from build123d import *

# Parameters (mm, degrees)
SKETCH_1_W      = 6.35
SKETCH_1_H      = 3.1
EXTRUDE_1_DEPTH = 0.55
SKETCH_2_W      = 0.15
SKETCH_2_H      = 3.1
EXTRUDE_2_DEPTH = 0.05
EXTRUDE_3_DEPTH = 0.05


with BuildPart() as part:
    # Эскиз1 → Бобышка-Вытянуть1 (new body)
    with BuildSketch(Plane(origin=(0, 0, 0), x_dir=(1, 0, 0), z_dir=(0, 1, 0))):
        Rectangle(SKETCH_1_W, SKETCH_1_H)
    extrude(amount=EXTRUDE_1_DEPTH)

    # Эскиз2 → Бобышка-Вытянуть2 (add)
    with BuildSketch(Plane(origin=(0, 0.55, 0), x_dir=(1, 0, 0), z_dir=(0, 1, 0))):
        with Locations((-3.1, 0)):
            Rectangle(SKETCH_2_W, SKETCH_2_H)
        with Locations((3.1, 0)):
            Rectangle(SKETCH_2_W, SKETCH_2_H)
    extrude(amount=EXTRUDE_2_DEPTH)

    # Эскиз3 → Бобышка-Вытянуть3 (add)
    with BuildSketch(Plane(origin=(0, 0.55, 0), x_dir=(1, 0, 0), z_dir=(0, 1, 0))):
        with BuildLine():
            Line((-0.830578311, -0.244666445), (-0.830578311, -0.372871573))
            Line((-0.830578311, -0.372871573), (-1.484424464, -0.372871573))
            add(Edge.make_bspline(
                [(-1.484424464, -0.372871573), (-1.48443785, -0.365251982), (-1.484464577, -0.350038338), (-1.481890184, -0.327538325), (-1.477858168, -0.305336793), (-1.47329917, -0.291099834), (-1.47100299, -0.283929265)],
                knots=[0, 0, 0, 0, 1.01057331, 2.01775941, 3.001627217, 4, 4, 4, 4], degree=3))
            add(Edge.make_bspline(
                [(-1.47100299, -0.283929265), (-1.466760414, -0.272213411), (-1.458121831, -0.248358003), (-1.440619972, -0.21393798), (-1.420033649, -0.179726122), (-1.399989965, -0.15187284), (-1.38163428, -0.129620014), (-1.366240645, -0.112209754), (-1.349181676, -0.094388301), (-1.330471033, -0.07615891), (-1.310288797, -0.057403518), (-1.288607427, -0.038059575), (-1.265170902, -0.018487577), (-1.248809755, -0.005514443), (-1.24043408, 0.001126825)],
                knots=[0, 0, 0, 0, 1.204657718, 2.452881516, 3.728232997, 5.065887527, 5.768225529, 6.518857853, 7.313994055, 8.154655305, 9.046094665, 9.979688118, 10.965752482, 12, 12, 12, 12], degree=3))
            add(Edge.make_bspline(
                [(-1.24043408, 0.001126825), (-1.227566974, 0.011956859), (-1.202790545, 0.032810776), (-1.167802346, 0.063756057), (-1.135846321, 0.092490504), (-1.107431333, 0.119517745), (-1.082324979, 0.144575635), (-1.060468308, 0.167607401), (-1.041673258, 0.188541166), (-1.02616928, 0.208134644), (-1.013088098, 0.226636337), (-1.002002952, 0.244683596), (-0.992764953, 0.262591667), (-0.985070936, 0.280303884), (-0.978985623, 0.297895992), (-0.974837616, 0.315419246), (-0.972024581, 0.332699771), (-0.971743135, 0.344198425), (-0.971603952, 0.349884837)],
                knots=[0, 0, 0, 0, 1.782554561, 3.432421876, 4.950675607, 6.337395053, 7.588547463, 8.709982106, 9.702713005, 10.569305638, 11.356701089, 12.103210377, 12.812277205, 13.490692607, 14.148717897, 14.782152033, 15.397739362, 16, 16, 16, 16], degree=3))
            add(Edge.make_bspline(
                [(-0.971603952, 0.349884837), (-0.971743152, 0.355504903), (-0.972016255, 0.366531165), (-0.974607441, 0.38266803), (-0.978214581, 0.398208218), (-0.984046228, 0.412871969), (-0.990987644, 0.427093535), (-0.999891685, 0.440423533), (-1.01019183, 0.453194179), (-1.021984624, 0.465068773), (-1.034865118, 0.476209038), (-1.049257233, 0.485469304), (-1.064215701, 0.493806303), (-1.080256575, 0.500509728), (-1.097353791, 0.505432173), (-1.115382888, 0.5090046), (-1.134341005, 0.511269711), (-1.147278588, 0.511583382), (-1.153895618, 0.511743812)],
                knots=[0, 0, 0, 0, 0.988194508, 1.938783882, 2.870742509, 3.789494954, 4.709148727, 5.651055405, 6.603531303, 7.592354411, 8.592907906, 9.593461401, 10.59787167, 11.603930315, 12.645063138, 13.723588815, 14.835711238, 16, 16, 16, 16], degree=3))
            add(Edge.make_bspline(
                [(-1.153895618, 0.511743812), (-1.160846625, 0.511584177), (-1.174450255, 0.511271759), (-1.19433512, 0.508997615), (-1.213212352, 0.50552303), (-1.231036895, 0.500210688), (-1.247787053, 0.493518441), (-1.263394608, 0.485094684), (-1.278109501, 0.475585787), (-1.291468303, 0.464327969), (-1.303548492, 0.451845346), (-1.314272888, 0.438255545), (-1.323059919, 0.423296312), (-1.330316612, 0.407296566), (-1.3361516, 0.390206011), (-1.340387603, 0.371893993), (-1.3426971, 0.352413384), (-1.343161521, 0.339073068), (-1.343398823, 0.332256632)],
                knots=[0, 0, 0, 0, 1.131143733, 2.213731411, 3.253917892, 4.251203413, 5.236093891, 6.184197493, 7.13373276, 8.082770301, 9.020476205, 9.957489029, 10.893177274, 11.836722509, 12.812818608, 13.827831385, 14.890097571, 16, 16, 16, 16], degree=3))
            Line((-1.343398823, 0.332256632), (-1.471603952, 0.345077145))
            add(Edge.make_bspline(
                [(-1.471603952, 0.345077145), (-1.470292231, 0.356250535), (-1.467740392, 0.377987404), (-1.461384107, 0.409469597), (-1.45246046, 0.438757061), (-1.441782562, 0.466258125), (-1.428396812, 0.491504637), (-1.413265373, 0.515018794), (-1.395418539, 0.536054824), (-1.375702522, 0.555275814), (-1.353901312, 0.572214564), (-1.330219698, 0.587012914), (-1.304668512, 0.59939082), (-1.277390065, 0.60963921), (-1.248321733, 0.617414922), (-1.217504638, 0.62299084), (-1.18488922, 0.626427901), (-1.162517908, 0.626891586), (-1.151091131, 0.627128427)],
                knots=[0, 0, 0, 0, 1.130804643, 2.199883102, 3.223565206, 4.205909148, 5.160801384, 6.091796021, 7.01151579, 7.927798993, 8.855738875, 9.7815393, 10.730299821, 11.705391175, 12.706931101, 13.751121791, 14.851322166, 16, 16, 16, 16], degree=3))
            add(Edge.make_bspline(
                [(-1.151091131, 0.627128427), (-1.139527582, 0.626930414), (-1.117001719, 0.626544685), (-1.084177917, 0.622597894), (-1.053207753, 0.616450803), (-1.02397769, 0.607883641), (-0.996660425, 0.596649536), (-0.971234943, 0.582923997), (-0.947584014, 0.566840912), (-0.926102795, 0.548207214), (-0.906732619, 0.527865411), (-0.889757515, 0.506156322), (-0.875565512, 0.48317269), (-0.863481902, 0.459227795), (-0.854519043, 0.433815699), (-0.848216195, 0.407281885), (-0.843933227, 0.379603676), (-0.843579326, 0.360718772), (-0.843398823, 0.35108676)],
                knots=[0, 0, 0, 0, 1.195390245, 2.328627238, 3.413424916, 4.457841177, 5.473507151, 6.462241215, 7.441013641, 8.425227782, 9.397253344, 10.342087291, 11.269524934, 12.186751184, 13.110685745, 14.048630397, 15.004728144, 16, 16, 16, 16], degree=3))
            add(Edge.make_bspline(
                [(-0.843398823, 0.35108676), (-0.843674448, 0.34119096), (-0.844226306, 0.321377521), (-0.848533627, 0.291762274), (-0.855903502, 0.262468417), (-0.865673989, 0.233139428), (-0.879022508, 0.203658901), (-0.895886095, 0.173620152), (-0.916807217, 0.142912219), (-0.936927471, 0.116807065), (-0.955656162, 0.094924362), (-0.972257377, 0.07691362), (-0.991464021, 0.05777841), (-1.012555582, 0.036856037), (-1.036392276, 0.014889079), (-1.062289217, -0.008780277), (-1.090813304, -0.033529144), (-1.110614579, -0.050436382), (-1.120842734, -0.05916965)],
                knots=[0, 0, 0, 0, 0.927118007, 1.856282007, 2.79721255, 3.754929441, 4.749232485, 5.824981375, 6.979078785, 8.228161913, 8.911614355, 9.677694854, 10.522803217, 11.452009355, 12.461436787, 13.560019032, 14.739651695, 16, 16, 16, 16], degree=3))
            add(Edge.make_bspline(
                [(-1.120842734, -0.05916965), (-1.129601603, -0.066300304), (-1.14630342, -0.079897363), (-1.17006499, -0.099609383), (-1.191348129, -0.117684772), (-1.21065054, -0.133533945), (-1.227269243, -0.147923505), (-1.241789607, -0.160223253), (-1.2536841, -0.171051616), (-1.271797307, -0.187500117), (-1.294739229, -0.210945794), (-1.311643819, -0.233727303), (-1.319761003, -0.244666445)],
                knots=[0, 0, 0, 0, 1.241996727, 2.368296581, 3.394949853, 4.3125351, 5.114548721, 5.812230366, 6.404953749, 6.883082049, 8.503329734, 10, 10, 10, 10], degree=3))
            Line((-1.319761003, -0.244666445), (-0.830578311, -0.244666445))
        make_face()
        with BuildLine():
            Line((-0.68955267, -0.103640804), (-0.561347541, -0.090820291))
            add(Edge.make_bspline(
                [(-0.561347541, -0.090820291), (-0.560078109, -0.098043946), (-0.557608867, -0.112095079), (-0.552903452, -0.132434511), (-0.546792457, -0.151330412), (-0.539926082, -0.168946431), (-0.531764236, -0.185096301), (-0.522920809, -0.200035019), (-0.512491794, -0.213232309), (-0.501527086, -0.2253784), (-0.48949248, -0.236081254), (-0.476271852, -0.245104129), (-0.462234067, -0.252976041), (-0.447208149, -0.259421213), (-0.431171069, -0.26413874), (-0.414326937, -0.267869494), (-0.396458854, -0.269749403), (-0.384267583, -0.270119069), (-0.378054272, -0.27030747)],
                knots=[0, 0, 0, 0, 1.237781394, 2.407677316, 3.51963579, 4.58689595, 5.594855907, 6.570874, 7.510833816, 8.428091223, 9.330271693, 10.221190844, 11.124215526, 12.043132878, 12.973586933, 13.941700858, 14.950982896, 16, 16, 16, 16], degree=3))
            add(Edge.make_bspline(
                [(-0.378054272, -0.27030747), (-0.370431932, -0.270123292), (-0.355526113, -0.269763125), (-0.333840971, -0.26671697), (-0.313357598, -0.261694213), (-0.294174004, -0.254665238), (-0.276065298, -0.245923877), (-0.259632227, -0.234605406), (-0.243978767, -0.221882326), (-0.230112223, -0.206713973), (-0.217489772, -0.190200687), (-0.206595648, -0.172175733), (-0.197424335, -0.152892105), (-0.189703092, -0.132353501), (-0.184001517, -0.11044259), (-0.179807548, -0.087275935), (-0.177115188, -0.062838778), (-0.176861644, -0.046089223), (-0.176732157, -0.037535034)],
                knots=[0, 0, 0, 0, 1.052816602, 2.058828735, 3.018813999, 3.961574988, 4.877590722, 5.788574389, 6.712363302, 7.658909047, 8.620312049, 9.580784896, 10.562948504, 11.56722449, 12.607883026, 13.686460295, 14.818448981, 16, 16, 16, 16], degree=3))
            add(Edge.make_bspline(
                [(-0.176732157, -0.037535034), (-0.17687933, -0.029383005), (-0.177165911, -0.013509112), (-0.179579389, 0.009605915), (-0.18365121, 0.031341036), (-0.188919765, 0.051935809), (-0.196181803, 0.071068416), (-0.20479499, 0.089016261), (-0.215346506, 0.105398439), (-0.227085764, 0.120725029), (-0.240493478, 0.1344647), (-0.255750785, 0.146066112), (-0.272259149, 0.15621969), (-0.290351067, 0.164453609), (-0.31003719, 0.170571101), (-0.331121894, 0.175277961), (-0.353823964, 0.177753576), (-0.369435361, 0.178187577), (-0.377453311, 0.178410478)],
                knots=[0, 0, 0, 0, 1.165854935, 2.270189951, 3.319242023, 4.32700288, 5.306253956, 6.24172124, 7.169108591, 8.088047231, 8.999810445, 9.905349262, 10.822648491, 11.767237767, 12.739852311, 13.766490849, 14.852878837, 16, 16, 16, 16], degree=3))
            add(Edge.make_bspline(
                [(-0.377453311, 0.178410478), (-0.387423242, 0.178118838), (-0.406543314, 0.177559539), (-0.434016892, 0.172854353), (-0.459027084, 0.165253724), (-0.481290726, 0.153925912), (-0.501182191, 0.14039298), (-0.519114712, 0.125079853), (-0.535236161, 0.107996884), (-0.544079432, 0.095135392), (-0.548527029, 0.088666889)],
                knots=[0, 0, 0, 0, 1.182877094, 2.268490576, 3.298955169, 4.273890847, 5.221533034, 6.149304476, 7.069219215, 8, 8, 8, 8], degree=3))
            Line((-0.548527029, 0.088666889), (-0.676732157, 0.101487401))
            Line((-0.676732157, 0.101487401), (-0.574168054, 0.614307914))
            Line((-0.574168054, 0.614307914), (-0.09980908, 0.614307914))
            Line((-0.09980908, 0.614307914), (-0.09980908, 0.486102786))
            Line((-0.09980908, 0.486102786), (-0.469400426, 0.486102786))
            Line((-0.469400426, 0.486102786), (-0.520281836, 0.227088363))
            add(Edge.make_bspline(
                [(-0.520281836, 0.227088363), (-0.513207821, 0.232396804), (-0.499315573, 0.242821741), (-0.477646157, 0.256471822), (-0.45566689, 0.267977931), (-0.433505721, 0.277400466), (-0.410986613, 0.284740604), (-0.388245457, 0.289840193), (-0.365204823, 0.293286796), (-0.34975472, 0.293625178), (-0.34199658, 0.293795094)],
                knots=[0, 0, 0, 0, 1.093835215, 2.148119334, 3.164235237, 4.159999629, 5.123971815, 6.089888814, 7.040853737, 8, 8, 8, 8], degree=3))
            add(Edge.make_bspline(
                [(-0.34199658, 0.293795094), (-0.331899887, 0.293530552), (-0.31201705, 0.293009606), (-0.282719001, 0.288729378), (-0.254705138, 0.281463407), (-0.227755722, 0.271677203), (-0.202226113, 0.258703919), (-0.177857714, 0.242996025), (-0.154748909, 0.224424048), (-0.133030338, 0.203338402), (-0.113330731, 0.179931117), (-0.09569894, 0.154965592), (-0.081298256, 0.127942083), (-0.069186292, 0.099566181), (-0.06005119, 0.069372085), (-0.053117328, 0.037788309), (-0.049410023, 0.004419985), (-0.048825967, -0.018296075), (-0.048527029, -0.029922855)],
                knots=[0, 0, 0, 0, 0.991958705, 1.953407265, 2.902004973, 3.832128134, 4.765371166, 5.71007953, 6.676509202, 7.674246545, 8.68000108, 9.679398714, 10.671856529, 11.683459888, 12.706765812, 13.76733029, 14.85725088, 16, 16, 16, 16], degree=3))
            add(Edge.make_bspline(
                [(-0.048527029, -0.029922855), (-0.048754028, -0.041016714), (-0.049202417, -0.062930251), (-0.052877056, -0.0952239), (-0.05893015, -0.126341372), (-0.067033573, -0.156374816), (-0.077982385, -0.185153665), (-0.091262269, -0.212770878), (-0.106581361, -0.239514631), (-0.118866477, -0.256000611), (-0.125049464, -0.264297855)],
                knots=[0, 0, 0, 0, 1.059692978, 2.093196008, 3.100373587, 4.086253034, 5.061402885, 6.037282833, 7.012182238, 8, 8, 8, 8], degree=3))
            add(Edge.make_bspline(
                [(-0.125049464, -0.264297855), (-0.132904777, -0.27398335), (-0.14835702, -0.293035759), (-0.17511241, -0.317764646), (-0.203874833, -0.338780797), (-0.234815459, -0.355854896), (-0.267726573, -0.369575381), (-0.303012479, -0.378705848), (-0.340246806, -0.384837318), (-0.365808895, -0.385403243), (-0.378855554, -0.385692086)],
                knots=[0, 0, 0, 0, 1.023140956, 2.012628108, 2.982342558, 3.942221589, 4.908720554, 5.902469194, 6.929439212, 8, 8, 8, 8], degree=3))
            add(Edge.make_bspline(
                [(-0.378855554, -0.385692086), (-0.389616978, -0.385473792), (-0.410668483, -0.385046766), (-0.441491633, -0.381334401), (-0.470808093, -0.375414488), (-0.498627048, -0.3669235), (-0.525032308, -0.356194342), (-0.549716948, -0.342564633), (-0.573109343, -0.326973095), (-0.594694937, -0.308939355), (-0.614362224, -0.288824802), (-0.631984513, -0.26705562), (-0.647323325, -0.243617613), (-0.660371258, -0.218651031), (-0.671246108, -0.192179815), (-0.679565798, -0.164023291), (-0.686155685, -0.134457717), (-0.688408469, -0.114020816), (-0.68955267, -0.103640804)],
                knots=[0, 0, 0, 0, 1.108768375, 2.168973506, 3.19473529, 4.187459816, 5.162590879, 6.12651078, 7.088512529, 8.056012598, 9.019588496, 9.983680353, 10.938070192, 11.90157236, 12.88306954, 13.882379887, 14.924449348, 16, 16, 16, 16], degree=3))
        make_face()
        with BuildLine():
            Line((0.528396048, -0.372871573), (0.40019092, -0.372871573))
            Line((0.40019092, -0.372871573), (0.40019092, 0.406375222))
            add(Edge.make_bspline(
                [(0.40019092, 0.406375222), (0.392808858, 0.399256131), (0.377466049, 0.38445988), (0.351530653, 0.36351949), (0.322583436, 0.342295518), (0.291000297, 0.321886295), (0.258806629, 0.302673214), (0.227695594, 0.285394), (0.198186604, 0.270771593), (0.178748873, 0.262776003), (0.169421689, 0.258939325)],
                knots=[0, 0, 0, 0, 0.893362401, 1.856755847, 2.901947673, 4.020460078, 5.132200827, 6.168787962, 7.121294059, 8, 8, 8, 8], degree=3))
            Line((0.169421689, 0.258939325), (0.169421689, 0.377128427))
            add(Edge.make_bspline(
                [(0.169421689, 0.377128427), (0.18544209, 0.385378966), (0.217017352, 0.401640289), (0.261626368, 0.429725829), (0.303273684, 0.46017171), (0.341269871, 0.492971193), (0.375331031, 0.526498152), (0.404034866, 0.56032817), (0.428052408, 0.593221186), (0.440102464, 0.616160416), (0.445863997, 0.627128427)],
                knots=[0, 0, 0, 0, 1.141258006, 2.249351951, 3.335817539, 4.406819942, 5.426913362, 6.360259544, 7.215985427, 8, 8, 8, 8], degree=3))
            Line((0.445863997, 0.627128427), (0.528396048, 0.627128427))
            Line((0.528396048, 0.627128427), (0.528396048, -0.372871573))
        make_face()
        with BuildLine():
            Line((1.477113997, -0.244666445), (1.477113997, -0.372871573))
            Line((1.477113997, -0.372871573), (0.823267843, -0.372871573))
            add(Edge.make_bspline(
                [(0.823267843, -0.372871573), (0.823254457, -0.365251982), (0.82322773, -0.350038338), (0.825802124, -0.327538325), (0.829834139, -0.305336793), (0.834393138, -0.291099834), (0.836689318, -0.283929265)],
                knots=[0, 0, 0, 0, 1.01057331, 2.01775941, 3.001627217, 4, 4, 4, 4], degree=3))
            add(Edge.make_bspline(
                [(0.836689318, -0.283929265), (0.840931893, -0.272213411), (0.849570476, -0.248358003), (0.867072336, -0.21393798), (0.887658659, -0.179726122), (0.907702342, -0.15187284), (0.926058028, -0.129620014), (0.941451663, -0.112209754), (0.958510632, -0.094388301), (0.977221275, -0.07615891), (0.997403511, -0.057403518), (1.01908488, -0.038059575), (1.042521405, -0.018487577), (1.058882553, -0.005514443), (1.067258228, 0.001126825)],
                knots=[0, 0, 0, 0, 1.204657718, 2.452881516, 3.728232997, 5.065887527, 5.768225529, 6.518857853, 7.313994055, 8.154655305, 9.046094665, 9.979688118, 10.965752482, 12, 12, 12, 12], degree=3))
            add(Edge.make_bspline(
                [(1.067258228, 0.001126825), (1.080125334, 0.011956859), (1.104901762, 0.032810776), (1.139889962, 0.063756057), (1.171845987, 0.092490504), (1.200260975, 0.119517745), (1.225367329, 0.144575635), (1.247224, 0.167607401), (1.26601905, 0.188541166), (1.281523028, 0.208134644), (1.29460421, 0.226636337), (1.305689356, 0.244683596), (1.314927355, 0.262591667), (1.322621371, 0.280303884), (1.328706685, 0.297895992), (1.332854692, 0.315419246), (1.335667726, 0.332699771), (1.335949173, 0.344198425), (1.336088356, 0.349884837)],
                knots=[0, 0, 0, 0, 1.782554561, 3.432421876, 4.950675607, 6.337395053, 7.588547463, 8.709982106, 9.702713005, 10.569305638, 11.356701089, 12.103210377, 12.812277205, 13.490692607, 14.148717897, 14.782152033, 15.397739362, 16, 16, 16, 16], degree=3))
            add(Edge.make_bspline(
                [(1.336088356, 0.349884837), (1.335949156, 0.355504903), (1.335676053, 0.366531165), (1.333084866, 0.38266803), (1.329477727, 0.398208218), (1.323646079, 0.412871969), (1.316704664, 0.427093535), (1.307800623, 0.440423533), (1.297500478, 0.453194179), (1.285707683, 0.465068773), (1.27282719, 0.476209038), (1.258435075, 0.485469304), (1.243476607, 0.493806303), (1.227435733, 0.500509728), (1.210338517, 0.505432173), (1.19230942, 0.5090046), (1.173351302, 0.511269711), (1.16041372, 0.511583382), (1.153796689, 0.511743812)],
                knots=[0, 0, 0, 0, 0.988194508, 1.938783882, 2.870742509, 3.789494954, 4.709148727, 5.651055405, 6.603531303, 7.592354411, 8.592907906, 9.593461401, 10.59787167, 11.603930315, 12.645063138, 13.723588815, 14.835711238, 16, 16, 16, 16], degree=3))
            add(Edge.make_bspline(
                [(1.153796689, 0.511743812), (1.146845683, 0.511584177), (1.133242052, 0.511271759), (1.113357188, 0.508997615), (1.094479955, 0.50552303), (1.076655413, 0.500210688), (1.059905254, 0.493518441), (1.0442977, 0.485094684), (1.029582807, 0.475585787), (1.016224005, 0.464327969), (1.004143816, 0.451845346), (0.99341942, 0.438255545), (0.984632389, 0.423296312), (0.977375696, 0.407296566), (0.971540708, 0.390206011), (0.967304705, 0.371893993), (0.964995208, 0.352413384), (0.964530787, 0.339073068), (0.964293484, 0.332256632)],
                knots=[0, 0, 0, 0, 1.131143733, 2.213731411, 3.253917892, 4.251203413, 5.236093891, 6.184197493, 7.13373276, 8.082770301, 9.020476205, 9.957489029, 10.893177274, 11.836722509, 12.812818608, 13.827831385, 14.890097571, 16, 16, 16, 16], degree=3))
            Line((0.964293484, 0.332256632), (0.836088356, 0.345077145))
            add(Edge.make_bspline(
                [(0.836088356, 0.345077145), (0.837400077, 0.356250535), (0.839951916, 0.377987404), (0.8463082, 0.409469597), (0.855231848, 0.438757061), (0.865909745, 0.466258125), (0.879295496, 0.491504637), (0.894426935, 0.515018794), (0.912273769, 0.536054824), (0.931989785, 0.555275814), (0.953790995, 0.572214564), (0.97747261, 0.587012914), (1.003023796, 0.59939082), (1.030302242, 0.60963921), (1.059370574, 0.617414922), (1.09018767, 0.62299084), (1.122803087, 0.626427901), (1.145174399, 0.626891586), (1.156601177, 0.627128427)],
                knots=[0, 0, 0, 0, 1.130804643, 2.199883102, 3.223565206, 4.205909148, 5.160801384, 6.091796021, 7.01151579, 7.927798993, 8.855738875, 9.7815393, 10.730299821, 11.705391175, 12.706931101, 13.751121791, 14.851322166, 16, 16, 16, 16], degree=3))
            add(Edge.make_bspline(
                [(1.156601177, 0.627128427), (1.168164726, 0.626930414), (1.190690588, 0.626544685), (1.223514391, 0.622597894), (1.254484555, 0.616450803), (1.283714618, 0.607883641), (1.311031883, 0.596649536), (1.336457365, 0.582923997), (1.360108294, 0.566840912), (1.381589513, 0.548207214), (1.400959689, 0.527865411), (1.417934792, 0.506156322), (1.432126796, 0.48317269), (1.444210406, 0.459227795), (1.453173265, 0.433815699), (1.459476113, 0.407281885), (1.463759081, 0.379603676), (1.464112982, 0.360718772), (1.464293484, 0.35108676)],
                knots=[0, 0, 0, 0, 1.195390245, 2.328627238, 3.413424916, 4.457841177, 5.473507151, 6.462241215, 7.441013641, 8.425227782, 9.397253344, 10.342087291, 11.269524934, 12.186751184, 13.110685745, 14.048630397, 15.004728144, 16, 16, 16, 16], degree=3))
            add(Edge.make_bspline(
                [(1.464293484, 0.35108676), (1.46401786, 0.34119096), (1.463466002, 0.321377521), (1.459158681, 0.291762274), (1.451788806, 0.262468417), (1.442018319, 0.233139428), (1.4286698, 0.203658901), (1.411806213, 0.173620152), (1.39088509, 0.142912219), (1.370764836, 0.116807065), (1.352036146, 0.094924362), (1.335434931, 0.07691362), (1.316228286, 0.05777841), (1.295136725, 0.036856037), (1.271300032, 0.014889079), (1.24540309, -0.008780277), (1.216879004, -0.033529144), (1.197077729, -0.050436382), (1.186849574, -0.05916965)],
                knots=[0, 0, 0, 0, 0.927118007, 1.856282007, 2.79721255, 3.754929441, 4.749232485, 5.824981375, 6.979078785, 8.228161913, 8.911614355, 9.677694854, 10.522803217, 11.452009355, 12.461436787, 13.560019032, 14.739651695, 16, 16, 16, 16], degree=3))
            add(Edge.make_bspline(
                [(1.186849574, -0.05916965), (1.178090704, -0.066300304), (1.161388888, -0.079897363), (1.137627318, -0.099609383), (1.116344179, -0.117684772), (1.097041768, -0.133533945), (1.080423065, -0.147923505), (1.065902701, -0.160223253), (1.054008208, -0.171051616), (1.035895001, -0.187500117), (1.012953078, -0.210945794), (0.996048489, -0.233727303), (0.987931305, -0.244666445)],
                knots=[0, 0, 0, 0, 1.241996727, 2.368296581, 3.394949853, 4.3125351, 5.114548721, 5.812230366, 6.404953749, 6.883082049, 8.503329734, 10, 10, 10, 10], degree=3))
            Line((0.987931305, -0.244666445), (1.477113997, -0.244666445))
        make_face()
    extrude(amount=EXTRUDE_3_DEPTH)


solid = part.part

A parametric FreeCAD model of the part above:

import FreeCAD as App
import Part
import Sketcher
from FreeCAD import Vector


def add_polygon(sketch, points):
    """Adds a closed chain of lines whose ends are joined by coincident constraints."""
    first, n = sketch.GeometryCount, len(points)
    for a, b in zip(points, points[1:] + points[:1]):
        sketch.addGeometry(Part.LineSegment(App.Vector(*a, 0), App.Vector(*b, 0)), False)
    for i in range(n):
        sketch.addConstraint(Sketcher.Constraint("Coincident", first + i, 2, first + (i + 1) % n, 1))

doc = App.newDocument("Part")
body = doc.addObject("PartDesign::Body", "Body")

# Sketch on XZ plane
sketch1 = doc.addObject("Sketcher::SketchObject", "Sketch")
body.addObject(sketch1)
sketch1.AttachmentSupport = (doc.XZ_Plane, [""])
sketch1.MapMode = "FlatFace"
add_polygon(sketch1, [(-3.175, -1.55), (-3.175, 1.55), (3.175, 1.55), (3.175, -1.55)])  # lines 0-3
sketch1.addConstraint([
    Sketcher.Constraint("Vertical", 0),
    Sketcher.Constraint("Horizontal", 1),
    Sketcher.Constraint("Vertical", 2),
    Sketcher.Constraint("Horizontal", 3),
    Sketcher.Constraint("Symmetric", 0, 2, 2, 2, -1, 1),
    Sketcher.Constraint("DistanceY", 0, 1, 0, 2, 3.1),
    Sketcher.Constraint("DistanceX", 1, 1, 1, 2, 6.35),
])
pad1 = doc.addObject("PartDesign::Pad", "Pad")
body.addObject(pad1)
pad1.Profile = sketch1
pad1.Length = 0.55
pad1.Reversed = True

# Sketch on XZ plane
sketch2 = doc.addObject("Sketcher::SketchObject", "Sketch001")
body.addObject(sketch2)
sketch2.AttachmentSupport = (doc.XZ_Plane, [""])
sketch2.MapMode = "FlatFace"
sketch2.AttachmentOffset = App.Placement(Vector(0, 0, -0.55), App.Rotation())
add_polygon(sketch2, [(-3.175, -1.55), (-3.175, 1.55), (-3.025, 1.55), (-3.025, -1.55)])  # lines 0-3
add_polygon(sketch2, [(3.025, -1.55), (3.025, 1.55), (3.175, 1.55), (3.175, -1.55)])  # lines 4-7
sketch2.addConstraint([
    Sketcher.Constraint("Vertical", 0),
    Sketcher.Constraint("Horizontal", 1),
    Sketcher.Constraint("Vertical", 2),
    Sketcher.Constraint("Horizontal", 3),
    Sketcher.Constraint("Vertical", 4),
    Sketcher.Constraint("Horizontal", 5),
    Sketcher.Constraint("Vertical", 6),
    Sketcher.Constraint("Horizontal", 7),
    Sketcher.Constraint("Symmetric", 2, 2, 4, 2, -1, 1),
    Sketcher.Constraint("Symmetric", 0, 2, 6, 2, -1, 1),
    Sketcher.Constraint("Horizontal", 1, 2, 4, 2),
    Sketcher.Constraint("DistanceY", 0, 1, 0, 2, 3.1),
    Sketcher.Constraint("DistanceX", 1, 1, 1, 2, 0.15),
    Sketcher.Constraint("DistanceX", 0, 2, 4, 2, 6.2),
])
pad2 = doc.addObject("PartDesign::Pad", "Pad001")
body.addObject(pad2)
pad2.Profile = sketch2
pad2.Length = 0.05
pad2.Reversed = True

# Sketch on XZ plane
sketch3 = doc.addObject("Sketcher::SketchObject", "Sketch002")
body.addObject(sketch3)
sketch3.AttachmentSupport = (doc.XZ_Plane, [""])
sketch3.MapMode = "FlatFace"
sketch3.AttachmentOffset = App.Placement(Vector(0, 0, -0.55), App.Rotation())
sketch3.addGeometry([
    Part.LineSegment(Vector(-0.830578, 0.372872, 0), Vector(-0.830578, 0.244666, 0)),  # 0
    Part.LineSegment(Vector(-0.830578, 0.244666, 0), Vector(-1.319761, 0.244666, 0)),  # 1
    Part.BSplineCurve([Vector(-1.120843, 0.05917, 0), Vector(-1.129602, 0.0663, 0), Vector(-1.146303, 0.079897, 0), Vector(-1.170065, 0.099609, 0), Vector(-1.191348, 0.117685, 0), Vector(-1.210651, 0.133534, 0), Vector(-1.227269, 0.147924, 0), Vector(-1.24179, 0.160223, 0), Vector(-1.253684, 0.171052, 0), Vector(-1.271797, 0.1875, 0), Vector(-1.294739, 0.210946, 0), Vector(-1.311644, 0.233727, 0), Vector(-1.319761, 0.244666, 0)], [4, 1, 1, 1, 1, 1, 1, 1, 1, 1, 4], [0, 1.241996727, 2.368296581, 3.394949853, 4.3125351, 5.114548721, 5.812230366, 6.404953749, 6.883082049, 8.503329734, 10], False, 3, [1, 1, 1, 1, 1, 1, 1, 1, 1, 1, 1, 1, 1], False),  # 2
    Part.BSplineCurve([Vector(-0.843399, -0.351087, 0), Vector(-0.843674, -0.341191, 0), Vector(-0.844226, -0.321378, 0), Vector(-0.848534, -0.291762, 0), Vector(-0.855904, -0.262468, 0), Vector(-0.865674, -0.233139, 0), Vector(-0.879023, -0.203659, 0), Vector(-0.895886, -0.17362, 0), Vector(-0.916807, -0.142912, 0), Vector(-0.936927, -0.116807, 0), Vector(-0.955656, -0.094924, 0), Vector(-0.972257, -0.076914, 0), Vector(-0.991464, -0.057778, 0), Vector(-1.012556, -0.036856, 0), Vector(-1.036392, -0.014889, 0), Vector(-1.062289, 0.00878, 0), Vector(-1.090813, 0.033529, 0), Vector(-1.110615, 0.050436, 0), Vector(-1.120843, 0.05917, 0)], [4, 1, 1, 1, 1, 1, 1, 1, 1, 1, 1, 1, 1, 1, 1, 1, 4], [0, 0.927118007, 1.856282007, 2.79721255, 3.754929441, 4.749232485, 5.824981375, 6.979078785, 8.228161913, 8.911614355, 9.677694854, 10.522803217, 11.452009355, 12.461436787, 13.560019032, 14.739651695, 16], False, 3, [1, 1, 1, 1, 1, 1, 1, 1, 1, 1, 1, 1, 1, 1, 1, 1, 1, 1, 1], False),  # 3
    Part.BSplineCurve([Vector(-1.151091, -0.627128, 0), Vector(-1.139528, -0.62693, 0), Vector(-1.117002, -0.626545, 0), Vector(-1.084178, -0.622598, 0), Vector(-1.053208, -0.616451, 0), Vector(-1.023978, -0.607884, 0), Vector(-0.99666, -0.59665, 0), Vector(-0.971235, -0.582924, 0), Vector(-0.947584, -0.566841, 0), Vector(-0.926103, -0.548207, 0), Vector(-0.906733, -0.527865, 0), Vector(-0.889758, -0.506156, 0), Vector(-0.875566, -0.483173, 0), Vector(-0.863482, -0.459228, 0), Vector(-0.854519, -0.433816, 0), Vector(-0.848216, -0.407282, 0), Vector(-0.843933, -0.379604, 0), Vector(-0.843579, -0.360719, 0), Vector(-0.843399, -0.351087, 0)], [4, 1, 1, 1, 1, 1, 1, 1, 1, 1, 1, 1, 1, 1, 1, 1, 4], [0, 1.195390245, 2.328627238, 3.413424916, 4.457841177, 5.473507151, 6.462241215, 7.441013641, 8.425227782, 9.397253344, 10.342087291, 11.269524934, 12.186751184, 13.110685745, 14.048630397, 15.004728144, 16], False, 3, [1, 1, 1, 1, 1, 1, 1, 1, 1, 1, 1, 1, 1, 1, 1, 1, 1, 1, 1], False),  # 4
    Part.BSplineCurve([Vector(-1.471604, -0.345077, 0), Vector(-1.470292, -0.356251, 0), Vector(-1.46774, -0.377987, 0), Vector(-1.461384, -0.40947, 0), Vector(-1.45246, -0.438757, 0), Vector(-1.441783, -0.466258, 0), Vector(-1.428397, -0.491505, 0), Vector(-1.413265, -0.515019, 0), Vector(-1.395419, -0.536055, 0), Vector(-1.375703, -0.555276, 0), Vector(-1.353901, -0.572215, 0), Vector(-1.33022, -0.587013, 0), Vector(-1.304669, -0.599391, 0), Vector(-1.27739, -0.609639, 0), Vector(-1.248322, -0.617415, 0), Vector(-1.217505, -0.622991, 0), Vector(-1.184889, -0.626428, 0), Vector(-1.162518, -0.626892, 0), Vector(-1.151091, -0.627128, 0)], [4, 1, 1, 1, 1, 1, 1, 1, 1, 1, 1, 1, 1, 1, 1, 1, 4], [0, 1.130804643, 2.199883102, 3.223565206, 4.205909148, 5.160801384, 6.091796021, 7.01151579, 7.927798993, 8.855738875, 9.7815393, 10.730299821, 11.705391175, 12.706931101, 13.751121791, 14.851322166, 16], False, 3, [1, 1, 1, 1, 1, 1, 1, 1, 1, 1, 1, 1, 1, 1, 1, 1, 1, 1, 1], False),  # 5
    Part.LineSegment(Vector(-1.471604, -0.345077, 0), Vector(-1.343399, -0.332257, 0)),  # 6
    Part.BSplineCurve([Vector(-1.153896, -0.511744, 0), Vector(-1.160847, -0.511584, 0), Vector(-1.17445, -0.511272, 0), Vector(-1.194335, -0.508998, 0), Vector(-1.213212, -0.505523, 0), Vector(-1.231037, -0.500211, 0), Vector(-1.247787, -0.493518, 0), Vector(-1.263395, -0.485095, 0), Vector(-1.27811, -0.475586, 0), Vector(-1.291468, -0.464328, 0), Vector(-1.303548, -0.451845, 0), Vector(-1.314273, -0.438256, 0), Vector(-1.32306, -0.423296, 0), Vector(-1.330317, -0.407297, 0), Vector(-1.336152, -0.390206, 0), Vector(-1.340388, -0.371894, 0), Vector(-1.342697, -0.352413, 0), Vector(-1.343162, -0.339073, 0), Vector(-1.343399, -0.332257, 0)], [4, 1, 1, 1, 1, 1, 1, 1, 1, 1, 1, 1, 1, 1, 1, 1, 4], [0, 1.131143733, 2.213731411, 3.253917892, 4.251203413, 5.236093891, 6.184197493, 7.13373276, 8.082770301, 9.020476205, 9.957489029, 10.893177274, 11.836722509, 12.812818608, 13.827831385, 14.890097571, 16], False, 3, [1, 1, 1, 1, 1, 1, 1, 1, 1, 1, 1, 1, 1, 1, 1, 1, 1, 1, 1], False),  # 7
    Part.BSplineCurve([Vector(-0.971604, -0.349885, 0), Vector(-0.971743, -0.355505, 0), Vector(-0.972016, -0.366531, 0), Vector(-0.974607, -0.382668, 0), Vector(-0.978215, -0.398208, 0), Vector(-0.984046, -0.412872, 0), Vector(-0.990988, -0.427094, 0), Vector(-0.999892, -0.440424, 0), Vector(-1.010192, -0.453194, 0), Vector(-1.021985, -0.465069, 0), Vector(-1.034865, -0.476209, 0), Vector(-1.049257, -0.485469, 0), Vector(-1.064216, -0.493806, 0), Vector(-1.080257, -0.50051, 0), Vector(-1.097354, -0.505432, 0), Vector(-1.115383, -0.509005, 0), Vector(-1.134341, -0.51127, 0), Vector(-1.147279, -0.511583, 0), Vector(-1.153896, -0.511744, 0)], [4, 1, 1, 1, 1, 1, 1, 1, 1, 1, 1, 1, 1, 1, 1, 1, 4], [0, 0.988194508, 1.938783882, 2.870742509, 3.789494954, 4.709148727, 5.651055405, 6.603531303, 7.592354411, 8.592907906, 9.593461401, 10.59787167, 11.603930315, 12.645063138, 13.723588815, 14.835711238, 16], False, 3, [1, 1, 1, 1, 1, 1, 1, 1, 1, 1, 1, 1, 1, 1, 1, 1, 1, 1, 1], False),  # 8
    Part.BSplineCurve([Vector(-1.240434, -0.001127, 0), Vector(-1.227567, -0.011957, 0), Vector(-1.202791, -0.032811, 0), Vector(-1.167802, -0.063756, 0), Vector(-1.135846, -0.092491, 0), Vector(-1.107431, -0.119518, 0), Vector(-1.082325, -0.144576, 0), Vector(-1.060468, -0.167607, 0), Vector(-1.041673, -0.188541, 0), Vector(-1.026169, -0.208135, 0), Vector(-1.013088, -0.226636, 0), Vector(-1.002003, -0.244684, 0), Vector(-0.992765, -0.262592, 0), Vector(-0.985071, -0.280304, 0), Vector(-0.978986, -0.297896, 0), Vector(-0.974838, -0.315419, 0), Vector(-0.972025, -0.3327, 0), Vector(-0.971743, -0.344198, 0), Vector(-0.971604, -0.349885, 0)], [4, 1, 1, 1, 1, 1, 1, 1, 1, 1, 1, 1, 1, 1, 1, 1, 4], [0, 1.782554561, 3.432421876, 4.950675607, 6.337395053, 7.588547463, 8.709982106, 9.702713005, 10.569305638, 11.356701089, 12.103210377, 12.812277205, 13.490692607, 14.148717897, 14.782152033, 15.397739362, 16], False, 3, [1, 1, 1, 1, 1, 1, 1, 1, 1, 1, 1, 1, 1, 1, 1, 1, 1, 1, 1], False),  # 9
    Part.BSplineCurve([Vector(-1.471003, 0.283929, 0), Vector(-1.46676, 0.272213, 0), Vector(-1.458122, 0.248358, 0), Vector(-1.44062, 0.213938, 0), Vector(-1.420034, 0.179726, 0), Vector(-1.39999, 0.151873, 0), Vector(-1.381634, 0.12962, 0), Vector(-1.366241, 0.11221, 0), Vector(-1.349182, 0.094388, 0), Vector(-1.330471, 0.076159, 0), Vector(-1.310289, 0.057404, 0), Vector(-1.288607, 0.03806, 0), Vector(-1.265171, 0.018488, 0), Vector(-1.24881, 0.005514, 0), Vector(-1.240434, -0.001127, 0)], [4, 1, 1, 1, 1, 1, 1, 1, 1, 1, 1, 1, 4], [0, 1.204657718, 2.452881516, 3.728232997, 5.065887527, 5.768225529, 6.518857853, 7.313994055, 8.154655305, 9.046094665, 9.979688118, 10.965752482, 12], False, 3, [1, 1, 1, 1, 1, 1, 1, 1, 1, 1, 1, 1, 1, 1, 1], False),  # 10
    Part.BSplineCurve([Vector(-1.484424, 0.372872, 0), Vector(-1.484438, 0.365252, 0), Vector(-1.484465, 0.350038, 0), Vector(-1.48189, 0.327538, 0), Vector(-1.477858, 0.305337, 0), Vector(-1.473299, 0.2911, 0), Vector(-1.471003, 0.283929, 0)], [4, 1, 1, 1, 4], [0, 1.01057331, 2.01775941, 3.001627217, 4], False, 3, [1, 1, 1, 1, 1, 1, 1], False),  # 11
    Part.LineSegment(Vector(-1.484424, 0.372872, 0), Vector(-0.830578, 0.372872, 0)),  # 12
    Part.LineSegment(Vector(-0.561348, 0.09082, 0), Vector(-0.689553, 0.103641, 0)),  # 13
    Part.BSplineCurve([Vector(-0.378856, 0.385692, 0), Vector(-0.389617, 0.385474, 0), Vector(-0.410668, 0.385047, 0), Vector(-0.441492, 0.381334, 0), Vector(-0.470808, 0.375414, 0), Vector(-0.498627, 0.366924, 0), Vector(-0.525032, 0.356194, 0), Vector(-0.549717, 0.342565, 0), Vector(-0.573109, 0.326973, 0), Vector(-0.594695, 0.308939, 0), Vector(-0.614362, 0.288825, 0), Vector(-0.631985, 0.267056, 0), Vector(-0.647323, 0.243618, 0), Vector(-0.660371, 0.218651, 0), Vector(-0.671246, 0.19218, 0), Vector(-0.679566, 0.164023, 0), Vector(-0.686156, 0.134458, 0), Vector(-0.688408, 0.114021, 0), Vector(-0.689553, 0.103641, 0)], [4, 1, 1, 1, 1, 1, 1, 1, 1, 1, 1, 1, 1, 1, 1, 1, 4], [0, 1.108768375, 2.168973506, 3.19473529, 4.187459816, 5.162590879, 6.12651078, 7.088512529, 8.056012598, 9.019588496, 9.983680353, 10.938070192, 11.90157236, 12.88306954, 13.882379887, 14.924449348, 16], False, 3, [1, 1, 1, 1, 1, 1, 1, 1, 1, 1, 1, 1, 1, 1, 1, 1, 1, 1, 1], False),  # 14
    Part.BSplineCurve([Vector(-0.125049, 0.264298, 0), Vector(-0.132905, 0.273983, 0), Vector(-0.148357, 0.293036, 0), Vector(-0.175112, 0.317765, 0), Vector(-0.203875, 0.338781, 0), Vector(-0.234815, 0.355855, 0), Vector(-0.267727, 0.369575, 0), Vector(-0.303012, 0.378706, 0), Vector(-0.340247, 0.384837, 0), Vector(-0.365809, 0.385403, 0), Vector(-0.378856, 0.385692, 0)], [4, 1, 1, 1, 1, 1, 1, 1, 4], [0, 1.023140956, 2.012628108, 2.982342558, 3.942221589, 4.908720554, 5.902469194, 6.929439212, 8], False, 3, [1, 1, 1, 1, 1, 1, 1, 1, 1, 1, 1], False),  # 15
    Part.BSplineCurve([Vector(-0.048527, 0.029923, 0), Vector(-0.048754, 0.041017, 0), Vector(-0.049202, 0.06293, 0), Vector(-0.052877, 0.095224, 0), Vector(-0.05893, 0.126341, 0), Vector(-0.067034, 0.156375, 0), Vector(-0.077982, 0.185154, 0), Vector(-0.091262, 0.212771, 0), Vector(-0.106581, 0.239515, 0), Vector(-0.118866, 0.256001, 0), Vector(-0.125049, 0.264298, 0)], [4, 1, 1, 1, 1, 1, 1, 1, 4], [0, 1.059692978, 2.093196008, 3.100373587, 4.086253034, 5.061402885, 6.037282833, 7.012182238, 8], False, 3, [1, 1, 1, 1, 1, 1, 1, 1, 1, 1, 1], False),  # 16
    Part.BSplineCurve([Vector(-0.341997, -0.293795, 0), Vector(-0.3319, -0.293531, 0), Vector(-0.312017, -0.29301, 0), Vector(-0.282719, -0.288729, 0), Vector(-0.254705, -0.281463, 0), Vector(-0.227756, -0.271677, 0), Vector(-0.202226, -0.258704, 0), Vector(-0.177858, -0.242996, 0), Vector(-0.154749, -0.224424, 0), Vector(-0.13303, -0.203338, 0), Vector(-0.113331, -0.179931, 0), Vector(-0.095699, -0.154966, 0), Vector(-0.081298, -0.127942, 0), Vector(-0.069186, -0.099566, 0), Vector(-0.060051, -0.069372, 0), Vector(-0.053117, -0.037788, 0), Vector(-0.04941, -0.00442, 0), Vector(-0.048826, 0.018296, 0), Vector(-0.048527, 0.029923, 0)], [4, 1, 1, 1, 1, 1, 1, 1, 1, 1, 1, 1, 1, 1, 1, 1, 4], [0, 0.991958705, 1.953407265, 2.902004973, 3.832128134, 4.765371166, 5.71007953, 6.676509202, 7.674246545, 8.68000108, 9.679398714, 10.671856529, 11.683459888, 12.706765812, 13.76733029, 14.85725088, 16], False, 3, [1, 1, 1, 1, 1, 1, 1, 1, 1, 1, 1, 1, 1, 1, 1, 1, 1, 1, 1], False),  # 17
    Part.BSplineCurve([Vector(-0.520282, -0.227088, 0), Vector(-0.513208, -0.232397, 0), Vector(-0.499316, -0.242822, 0), Vector(-0.477646, -0.256472, 0), Vector(-0.455667, -0.267978, 0), Vector(-0.433506, -0.2774, 0), Vector(-0.410987, -0.284741, 0), Vector(-0.388245, -0.28984, 0), Vector(-0.365205, -0.293287, 0), Vector(-0.349755, -0.293625, 0), Vector(-0.341997, -0.293795, 0)], [4, 1, 1, 1, 1, 1, 1, 1, 4], [0, 1.093835215, 2.148119334, 3.164235237, 4.159999629, 5.123971815, 6.089888814, 7.040853737, 8], False, 3, [1, 1, 1, 1, 1, 1, 1, 1, 1, 1, 1], False),  # 18
    Part.LineSegment(Vector(-0.520282, -0.227088, 0), Vector(-0.4694, -0.486103, 0)),  # 19
    Part.LineSegment(Vector(-0.4694, -0.486103, 0), Vector(-0.099809, -0.486103, 0)),  # 20
    Part.LineSegment(Vector(-0.099809, -0.486103, 0), Vector(-0.099809, -0.614308, 0)),  # 21
    Part.LineSegment(Vector(-0.099809, -0.614308, 0), Vector(-0.574168, -0.614308, 0)),  # 22
    Part.LineSegment(Vector(-0.574168, -0.614308, 0), Vector(-0.676732, -0.101487, 0)),  # 23
    Part.LineSegment(Vector(-0.676732, -0.101487, 0), Vector(-0.548527, -0.088667, 0)),  # 24
    Part.BSplineCurve([Vector(-0.377453, -0.17841, 0), Vector(-0.387423, -0.178119, 0), Vector(-0.406543, -0.17756, 0), Vector(-0.434017, -0.172854, 0), Vector(-0.459027, -0.165254, 0), Vector(-0.481291, -0.153926, 0), Vector(-0.501182, -0.140393, 0), Vector(-0.519115, -0.12508, 0), Vector(-0.535236, -0.107997, 0), Vector(-0.544079, -0.095135, 0), Vector(-0.548527, -0.088667, 0)], [4, 1, 1, 1, 1, 1, 1, 1, 4], [0, 1.182877094, 2.268490576, 3.298955169, 4.273890847, 5.221533034, 6.149304476, 7.069219215, 8], False, 3, [1, 1, 1, 1, 1, 1, 1, 1, 1, 1, 1], False),  # 25
    Part.BSplineCurve([Vector(-0.176732, 0.037535, 0), Vector(-0.176879, 0.029383, 0), Vector(-0.177166, 0.013509, 0), Vector(-0.179579, -0.009606, 0), Vector(-0.183651, -0.031341, 0), Vector(-0.18892, -0.051936, 0), Vector(-0.196182, -0.071068, 0), Vector(-0.204795, -0.089016, 0), Vector(-0.215347, -0.105398, 0), Vector(-0.227086, -0.120725, 0), Vector(-0.240493, -0.134465, 0), Vector(-0.255751, -0.146066, 0), Vector(-0.272259, -0.15622, 0), Vector(-0.290351, -0.164454, 0), Vector(-0.310037, -0.170571, 0), Vector(-0.331122, -0.175278, 0), Vector(-0.353824, -0.177754, 0), Vector(-0.369435, -0.178188, 0), Vector(-0.377453, -0.17841, 0)], [4, 1, 1, 1, 1, 1, 1, 1, 1, 1, 1, 1, 1, 1, 1, 1, 4], [0, 1.165854935, 2.270189951, 3.319242023, 4.32700288, 5.306253956, 6.24172124, 7.169108591, 8.088047231, 8.999810445, 9.905349262, 10.822648491, 11.767237767, 12.739852311, 13.766490849, 14.852878837, 16], False, 3, [1, 1, 1, 1, 1, 1, 1, 1, 1, 1, 1, 1, 1, 1, 1, 1, 1, 1, 1], False),  # 26
    Part.BSplineCurve([Vector(-0.378054, 0.270307, 0), Vector(-0.370432, 0.270123, 0), Vector(-0.355526, 0.269763, 0), Vector(-0.333841, 0.266717, 0), Vector(-0.313358, 0.261694, 0), Vector(-0.294174, 0.254665, 0), Vector(-0.276065, 0.245924, 0), Vector(-0.259632, 0.234605, 0), Vector(-0.243979, 0.221882, 0), Vector(-0.230112, 0.206714, 0), Vector(-0.21749, 0.190201, 0), Vector(-0.206596, 0.172176, 0), Vector(-0.197424, 0.152892, 0), Vector(-0.189703, 0.132354, 0), Vector(-0.184002, 0.110443, 0), Vector(-0.179808, 0.087276, 0), Vector(-0.177115, 0.062839, 0), Vector(-0.176862, 0.046089, 0), Vector(-0.176732, 0.037535, 0)], [4, 1, 1, 1, 1, 1, 1, 1, 1, 1, 1, 1, 1, 1, 1, 1, 4], [0, 1.052816602, 2.058828735, 3.018813999, 3.961574988, 4.877590722, 5.788574389, 6.712363302, 7.658909047, 8.620312049, 9.580784896, 10.562948504, 11.56722449, 12.607883026, 13.686460295, 14.818448981, 16], False, 3, [1, 1, 1, 1, 1, 1, 1, 1, 1, 1, 1, 1, 1, 1, 1, 1, 1, 1, 1], False),  # 27
    Part.BSplineCurve([Vector(-0.561348, 0.09082, 0), Vector(-0.560078, 0.098044, 0), Vector(-0.557609, 0.112095, 0), Vector(-0.552903, 0.132435, 0), Vector(-0.546792, 0.15133, 0), Vector(-0.539926, 0.168946, 0), Vector(-0.531764, 0.185096, 0), Vector(-0.522921, 0.200035, 0), Vector(-0.512492, 0.213232, 0), Vector(-0.501527, 0.225378, 0), Vector(-0.489492, 0.236081, 0), Vector(-0.476272, 0.245104, 0), Vector(-0.462234, 0.252976, 0), Vector(-0.447208, 0.259421, 0), Vector(-0.431171, 0.264139, 0), Vector(-0.414327, 0.267869, 0), Vector(-0.396459, 0.269749, 0), Vector(-0.384268, 0.270119, 0), Vector(-0.378054, 0.270307, 0)], [4, 1, 1, 1, 1, 1, 1, 1, 1, 1, 1, 1, 1, 1, 1, 1, 4], [0, 1.237781394, 2.407677316, 3.51963579, 4.58689595, 5.594855907, 6.570874, 7.510833816, 8.428091223, 9.330271693, 10.221190844, 11.124215526, 12.043132878, 12.973586933, 13.941700858, 14.950982896, 16], False, 3, [1, 1, 1, 1, 1, 1, 1, 1, 1, 1, 1, 1, 1, 1, 1, 1, 1, 1, 1], False),  # 28
    Part.LineSegment(Vector(0.400191, 0.372872, 0), Vector(0.528396, 0.372872, 0)),  # 29
    Part.LineSegment(Vector(0.528396, 0.372872, 0), Vector(0.528396, -0.627128, 0)),  # 30
    Part.LineSegment(Vector(0.528396, -0.627128, 0), Vector(0.445864, -0.627128, 0)),  # 31
    Part.BSplineCurve([Vector(0.169422, -0.377128, 0), Vector(0.185442, -0.385379, 0), Vector(0.217017, -0.40164, 0), Vector(0.261626, -0.429726, 0), Vector(0.303274, -0.460172, 0), Vector(0.34127, -0.492971, 0), Vector(0.375331, -0.526498, 0), Vector(0.404035, -0.560328, 0), Vector(0.428052, -0.593221, 0), Vector(0.440102, -0.61616, 0), Vector(0.445864, -0.627128, 0)], [4, 1, 1, 1, 1, 1, 1, 1, 4], [0, 1.141258006, 2.249351951, 3.335817539, 4.406819942, 5.426913362, 6.360259544, 7.215985427, 8], False, 3, [1, 1, 1, 1, 1, 1, 1, 1, 1, 1, 1], False),  # 32
    Part.LineSegment(Vector(0.169422, -0.377128, 0), Vector(0.169422, -0.258939, 0)),  # 33
    Part.BSplineCurve([Vector(0.400191, -0.406375, 0), Vector(0.392809, -0.399256, 0), Vector(0.377466, -0.38446, 0), Vector(0.351531, -0.363519, 0), Vector(0.322583, -0.342296, 0), Vector(0.291, -0.321886, 0), Vector(0.258807, -0.302673, 0), Vector(0.227696, -0.285394, 0), Vector(0.198187, -0.270772, 0), Vector(0.178749, -0.262776, 0), Vector(0.169422, -0.258939, 0)], [4, 1, 1, 1, 1, 1, 1, 1, 4], [0, 0.893362401, 1.856755847, 2.901947673, 4.020460078, 5.132200827, 6.168787962, 7.121294059, 8], False, 3, [1, 1, 1, 1, 1, 1, 1, 1, 1, 1, 1], False),  # 34
    Part.LineSegment(Vector(0.400191, -0.406375, 0), Vector(0.400191, 0.372872, 0)),  # 35
    Part.LineSegment(Vector(1.477114, 0.372872, 0), Vector(1.477114, 0.244666, 0)),  # 36
    Part.LineSegment(Vector(1.477114, 0.244666, 0), Vector(0.987931, 0.244666, 0)),  # 37
    Part.BSplineCurve([Vector(1.18685, 0.05917, 0), Vector(1.178091, 0.0663, 0), Vector(1.161389, 0.079897, 0), Vector(1.137627, 0.099609, 0), Vector(1.116344, 0.117685, 0), Vector(1.097042, 0.133534, 0), Vector(1.080423, 0.147924, 0), Vector(1.065903, 0.160223, 0), Vector(1.054008, 0.171052, 0), Vector(1.035895, 0.1875, 0), Vector(1.012953, 0.210946, 0), Vector(0.996048, 0.233727, 0), Vector(0.987931, 0.244666, 0)], [4, 1, 1, 1, 1, 1, 1, 1, 1, 1, 4], [0, 1.241996727, 2.368296581, 3.394949853, 4.3125351, 5.114548721, 5.812230366, 6.404953749, 6.883082049, 8.503329734, 10], False, 3, [1, 1, 1, 1, 1, 1, 1, 1, 1, 1, 1, 1, 1], False),  # 38
    Part.BSplineCurve([Vector(1.464293, -0.351087, 0), Vector(1.464018, -0.341191, 0), Vector(1.463466, -0.321378, 0), Vector(1.459159, -0.291762, 0), Vector(1.451789, -0.262468, 0), Vector(1.442018, -0.233139, 0), Vector(1.42867, -0.203659, 0), Vector(1.411806, -0.17362, 0), Vector(1.390885, -0.142912, 0), Vector(1.370765, -0.116807, 0), Vector(1.352036, -0.094924, 0), Vector(1.335435, -0.076914, 0), Vector(1.316228, -0.057778, 0), Vector(1.295137, -0.036856, 0), Vector(1.2713, -0.014889, 0), Vector(1.245403, 0.00878, 0), Vector(1.216879, 0.033529, 0), Vector(1.197078, 0.050436, 0), Vector(1.18685, 0.05917, 0)], [4, 1, 1, 1, 1, 1, 1, 1, 1, 1, 1, 1, 1, 1, 1, 1, 4], [0, 0.927118007, 1.856282007, 2.79721255, 3.754929441, 4.749232485, 5.824981375, 6.979078785, 8.228161913, 8.911614355, 9.677694854, 10.522803217, 11.452009355, 12.461436787, 13.560019032, 14.739651695, 16], False, 3, [1, 1, 1, 1, 1, 1, 1, 1, 1, 1, 1, 1, 1, 1, 1, 1, 1, 1, 1], False),  # 39
    Part.BSplineCurve([Vector(1.156601, -0.627128, 0), Vector(1.168165, -0.62693, 0), Vector(1.190691, -0.626545, 0), Vector(1.223514, -0.622598, 0), Vector(1.254485, -0.616451, 0), Vector(1.283715, -0.607884, 0), Vector(1.311032, -0.59665, 0), Vector(1.336457, -0.582924, 0), Vector(1.360108, -0.566841, 0), Vector(1.38159, -0.548207, 0), Vector(1.40096, -0.527865, 0), Vector(1.417935, -0.506156, 0), Vector(1.432127, -0.483173, 0), Vector(1.44421, -0.459228, 0), Vector(1.453173, -0.433816, 0), Vector(1.459476, -0.407282, 0), Vector(1.463759, -0.379604, 0), Vector(1.464113, -0.360719, 0), Vector(1.464293, -0.351087, 0)], [4, 1, 1, 1, 1, 1, 1, 1, 1, 1, 1, 1, 1, 1, 1, 1, 4], [0, 1.195390245, 2.328627238, 3.413424916, 4.457841177, 5.473507151, 6.462241215, 7.441013641, 8.425227782, 9.397253344, 10.342087291, 11.269524934, 12.186751184, 13.110685745, 14.048630397, 15.004728144, 16], False, 3, [1, 1, 1, 1, 1, 1, 1, 1, 1, 1, 1, 1, 1, 1, 1, 1, 1, 1, 1], False),  # 40
    Part.BSplineCurve([Vector(0.836088, -0.345077, 0), Vector(0.8374, -0.356251, 0), Vector(0.839952, -0.377987, 0), Vector(0.846308, -0.40947, 0), Vector(0.855232, -0.438757, 0), Vector(0.86591, -0.466258, 0), Vector(0.879295, -0.491505, 0), Vector(0.894427, -0.515019, 0), Vector(0.912274, -0.536055, 0), Vector(0.93199, -0.555276, 0), Vector(0.953791, -0.572215, 0), Vector(0.977473, -0.587013, 0), Vector(1.003024, -0.599391, 0), Vector(1.030302, -0.609639, 0), Vector(1.059371, -0.617415, 0), Vector(1.090188, -0.622991, 0), Vector(1.122803, -0.626428, 0), Vector(1.145174, -0.626892, 0), Vector(1.156601, -0.627128, 0)], [4, 1, 1, 1, 1, 1, 1, 1, 1, 1, 1, 1, 1, 1, 1, 1, 4], [0, 1.130804643, 2.199883102, 3.223565206, 4.205909148, 5.160801384, 6.091796021, 7.01151579, 7.927798993, 8.855738875, 9.7815393, 10.730299821, 11.705391175, 12.706931101, 13.751121791, 14.851322166, 16], False, 3, [1, 1, 1, 1, 1, 1, 1, 1, 1, 1, 1, 1, 1, 1, 1, 1, 1, 1, 1], False),  # 41
    Part.LineSegment(Vector(0.836088, -0.345077, 0), Vector(0.964293, -0.332257, 0)),  # 42
    Part.BSplineCurve([Vector(1.153797, -0.511744, 0), Vector(1.146846, -0.511584, 0), Vector(1.133242, -0.511272, 0), Vector(1.113357, -0.508998, 0), Vector(1.09448, -0.505523, 0), Vector(1.076655, -0.500211, 0), Vector(1.059905, -0.493518, 0), Vector(1.044298, -0.485095, 0), Vector(1.029583, -0.475586, 0), Vector(1.016224, -0.464328, 0), Vector(1.004144, -0.451845, 0), Vector(0.993419, -0.438256, 0), Vector(0.984632, -0.423296, 0), Vector(0.977376, -0.407297, 0), Vector(0.971541, -0.390206, 0), Vector(0.967305, -0.371894, 0), Vector(0.964995, -0.352413, 0), Vector(0.964531, -0.339073, 0), Vector(0.964293, -0.332257, 0)], [4, 1, 1, 1, 1, 1, 1, 1, 1, 1, 1, 1, 1, 1, 1, 1, 4], [0, 1.131143733, 2.213731411, 3.253917892, 4.251203413, 5.236093891, 6.184197493, 7.13373276, 8.082770301, 9.020476205, 9.957489029, 10.893177274, 11.836722509, 12.812818608, 13.827831385, 14.890097571, 16], False, 3, [1, 1, 1, 1, 1, 1, 1, 1, 1, 1, 1, 1, 1, 1, 1, 1, 1, 1, 1], False),  # 43
    Part.BSplineCurve([Vector(1.336088, -0.349885, 0), Vector(1.335949, -0.355505, 0), Vector(1.335676, -0.366531, 0), Vector(1.333085, -0.382668, 0), Vector(1.329478, -0.398208, 0), Vector(1.323646, -0.412872, 0), Vector(1.316705, -0.427094, 0), Vector(1.307801, -0.440424, 0), Vector(1.2975, -0.453194, 0), Vector(1.285708, -0.465069, 0), Vector(1.272827, -0.476209, 0), Vector(1.258435, -0.485469, 0), Vector(1.243477, -0.493806, 0), Vector(1.227436, -0.50051, 0), Vector(1.210339, -0.505432, 0), Vector(1.192309, -0.509005, 0), Vector(1.173351, -0.51127, 0), Vector(1.160414, -0.511583, 0), Vector(1.153797, -0.511744, 0)], [4, 1, 1, 1, 1, 1, 1, 1, 1, 1, 1, 1, 1, 1, 1, 1, 4], [0, 0.988194508, 1.938783882, 2.870742509, 3.789494954, 4.709148727, 5.651055405, 6.603531303, 7.592354411, 8.592907906, 9.593461401, 10.59787167, 11.603930315, 12.645063138, 13.723588815, 14.835711238, 16], False, 3, [1, 1, 1, 1, 1, 1, 1, 1, 1, 1, 1, 1, 1, 1, 1, 1, 1, 1, 1], False),  # 44
    Part.BSplineCurve([Vector(1.067258, -0.001127, 0), Vector(1.080125, -0.011957, 0), Vector(1.104902, -0.032811, 0), Vector(1.13989, -0.063756, 0), Vector(1.171846, -0.092491, 0), Vector(1.200261, -0.119518, 0), Vector(1.225367, -0.144576, 0), Vector(1.247224, -0.167607, 0), Vector(1.266019, -0.188541, 0), Vector(1.281523, -0.208135, 0), Vector(1.294604, -0.226636, 0), Vector(1.305689, -0.244684, 0), Vector(1.314927, -0.262592, 0), Vector(1.322621, -0.280304, 0), Vector(1.328707, -0.297896, 0), Vector(1.332855, -0.315419, 0), Vector(1.335668, -0.3327, 0), Vector(1.335949, -0.344198, 0), Vector(1.336088, -0.349885, 0)], [4, 1, 1, 1, 1, 1, 1, 1, 1, 1, 1, 1, 1, 1, 1, 1, 4], [0, 1.782554561, 3.432421876, 4.950675607, 6.337395053, 7.588547463, 8.709982106, 9.702713005, 10.569305638, 11.356701089, 12.103210377, 12.812277205, 13.490692607, 14.148717897, 14.782152033, 15.397739362, 16], False, 3, [1, 1, 1, 1, 1, 1, 1, 1, 1, 1, 1, 1, 1, 1, 1, 1, 1, 1, 1], False),  # 45
    Part.BSplineCurve([Vector(0.836689, 0.283929, 0), Vector(0.840932, 0.272213, 0), Vector(0.84957, 0.248358, 0), Vector(0.867072, 0.213938, 0), Vector(0.887659, 0.179726, 0), Vector(0.907702, 0.151873, 0), Vector(0.926058, 0.12962, 0), Vector(0.941452, 0.11221, 0), Vector(0.958511, 0.094388, 0), Vector(0.977221, 0.076159, 0), Vector(0.997404, 0.057404, 0), Vector(1.019085, 0.03806, 0), Vector(1.042521, 0.018488, 0), Vector(1.058883, 0.005514, 0), Vector(1.067258, -0.001127, 0)], [4, 1, 1, 1, 1, 1, 1, 1, 1, 1, 1, 1, 4], [0, 1.204657718, 2.452881516, 3.728232997, 5.065887527, 5.768225529, 6.518857853, 7.313994055, 8.154655305, 9.046094665, 9.979688118, 10.965752482, 12], False, 3, [1, 1, 1, 1, 1, 1, 1, 1, 1, 1, 1, 1, 1, 1, 1], False),  # 46
    Part.BSplineCurve([Vector(0.823268, 0.372872, 0), Vector(0.823254, 0.365252, 0), Vector(0.823228, 0.350038, 0), Vector(0.825802, 0.327538, 0), Vector(0.829834, 0.305337, 0), Vector(0.834393, 0.2911, 0), Vector(0.836689, 0.283929, 0)], [4, 1, 1, 1, 4], [0, 1.01057331, 2.01775941, 3.001627217, 4], False, 3, [1, 1, 1, 1, 1, 1, 1], False),  # 47
    Part.LineSegment(Vector(0.823268, 0.372872, 0), Vector(1.477114, 0.372872, 0)),  # 48
], False)
sketch3.addConstraint([
    Sketcher.Constraint("Block", 2),
    Sketcher.Constraint("Block", 3),
    Sketcher.Constraint("Block", 4),
    Sketcher.Constraint("Block", 5),
    Sketcher.Constraint("Block", 7),
    Sketcher.Constraint("Block", 8),
    Sketcher.Constraint("Block", 9),
    Sketcher.Constraint("Block", 10),
    Sketcher.Constraint("Block", 11),
    Sketcher.Constraint("Block", 14),
    Sketcher.Constraint("Block", 15),
    Sketcher.Constraint("Block", 16),
    Sketcher.Constraint("Block", 17),
    Sketcher.Constraint("Block", 18),
    Sketcher.Constraint("Block", 25),
    Sketcher.Constraint("Block", 26),
    Sketcher.Constraint("Block", 27),
    Sketcher.Constraint("Block", 28),
    Sketcher.Constraint("Block", 32),
    Sketcher.Constraint("Block", 34),
    Sketcher.Constraint("Block", 38),
    Sketcher.Constraint("Block", 39),
    Sketcher.Constraint("Block", 40),
    Sketcher.Constraint("Block", 41),
    Sketcher.Constraint("Block", 43),
    Sketcher.Constraint("Block", 44),
    Sketcher.Constraint("Block", 45),
    Sketcher.Constraint("Block", 46),
    Sketcher.Constraint("Block", 47),
    Sketcher.Constraint("Coincident", 0, 2, 1, 1),
    Sketcher.Constraint("Coincident", 1, 2, 2, 2),
    Sketcher.Constraint("Coincident", 5, 1, 6, 1),
    Sketcher.Constraint("Coincident", 6, 2, 7, 2),
    Sketcher.Constraint("Coincident", 11, 1, 12, 1),
    Sketcher.Constraint("Coincident", 12, 2, 0, 1),
    Sketcher.Constraint("Coincident", 13, 2, 14, 2),
    Sketcher.Constraint("Coincident", 18, 1, 19, 1),
    Sketcher.Constraint("Coincident", 19, 2, 20, 1),
    Sketcher.Constraint("Coincident", 20, 2, 21, 1),
    Sketcher.Constraint("Coincident", 21, 2, 22, 1),
    Sketcher.Constraint("Coincident", 22, 2, 23, 1),
    Sketcher.Constraint("Coincident", 23, 2, 24, 1),
    Sketcher.Constraint("Coincident", 24, 2, 25, 2),
    Sketcher.Constraint("Coincident", 28, 1, 13, 1),
    Sketcher.Constraint("Coincident", 29, 2, 30, 1),
    Sketcher.Constraint("Coincident", 30, 2, 31, 1),
    Sketcher.Constraint("Coincident", 31, 2, 32, 2),
    Sketcher.Constraint("Coincident", 32, 1, 33, 1),
    Sketcher.Constraint("Coincident", 33, 2, 34, 2),
    Sketcher.Constraint("Coincident", 34, 1, 35, 1),
    Sketcher.Constraint("Coincident", 35, 2, 29, 1),
    Sketcher.Constraint("Coincident", 36, 2, 37, 1),
    Sketcher.Constraint("Coincident", 37, 2, 38, 2),
    Sketcher.Constraint("Coincident", 41, 1, 42, 1),
    Sketcher.Constraint("Coincident", 42, 2, 43, 2),
    Sketcher.Constraint("Coincident", 47, 1, 48, 1),
    Sketcher.Constraint("Coincident", 48, 2, 36, 1),
    Sketcher.Constraint("Vertical", 0),
    Sketcher.Constraint("Horizontal", 1),
    Sketcher.Constraint("Horizontal", 12),
    Sketcher.Constraint("Horizontal", 20),
    Sketcher.Constraint("Vertical", 21),
    Sketcher.Constraint("Horizontal", 22),
    Sketcher.Constraint("Horizontal", 29),
    Sketcher.Constraint("Vertical", 30),
    Sketcher.Constraint("Horizontal", 31),
    Sketcher.Constraint("Vertical", 35),
    Sketcher.Constraint("Vertical", 36),
    Sketcher.Constraint("Horizontal", 37),
    Sketcher.Constraint("Horizontal", 48),
    Sketcher.Constraint("DistanceY", 30, 2, 30, 1, 1.0),
    Sketcher.Constraint("DistanceX", 20, 2, 35, 2, 0.5),
    Sketcher.Constraint("DistanceX", 6, 2, 19, 2, 0.873998),
    Sketcher.Constraint("DistanceX", 22, 2, 22, 1, 0.474359),
    Sketcher.Constraint("DistanceX", 1, 2, 1, 1, 0.489183),
    Sketcher.Constraint("DistanceX", 29, 1, 29, 2, 0.128205),
    Sketcher.Constraint("DistanceX", 37, 2, 37, 1, 0.489183),
    Sketcher.Constraint("DistanceY", 21, 2, 21, 1, 0.128205),
    Sketcher.Constraint("DistanceY", 19, 2, 0, 2, 0.730769),
    Sketcher.Constraint("DistanceX", 13, 2, 23, 2, 0.012821),
    Sketcher.Constraint("DistanceY", 23, 2, 13, 2, 0.205128),
])
pad3 = doc.addObject("PartDesign::Pad", "Pad002")
body.addObject(pad3)
pad3.Profile = sketch3
pad3.Length = 0.05
pad3.Reversed = True

doc.recompute()
